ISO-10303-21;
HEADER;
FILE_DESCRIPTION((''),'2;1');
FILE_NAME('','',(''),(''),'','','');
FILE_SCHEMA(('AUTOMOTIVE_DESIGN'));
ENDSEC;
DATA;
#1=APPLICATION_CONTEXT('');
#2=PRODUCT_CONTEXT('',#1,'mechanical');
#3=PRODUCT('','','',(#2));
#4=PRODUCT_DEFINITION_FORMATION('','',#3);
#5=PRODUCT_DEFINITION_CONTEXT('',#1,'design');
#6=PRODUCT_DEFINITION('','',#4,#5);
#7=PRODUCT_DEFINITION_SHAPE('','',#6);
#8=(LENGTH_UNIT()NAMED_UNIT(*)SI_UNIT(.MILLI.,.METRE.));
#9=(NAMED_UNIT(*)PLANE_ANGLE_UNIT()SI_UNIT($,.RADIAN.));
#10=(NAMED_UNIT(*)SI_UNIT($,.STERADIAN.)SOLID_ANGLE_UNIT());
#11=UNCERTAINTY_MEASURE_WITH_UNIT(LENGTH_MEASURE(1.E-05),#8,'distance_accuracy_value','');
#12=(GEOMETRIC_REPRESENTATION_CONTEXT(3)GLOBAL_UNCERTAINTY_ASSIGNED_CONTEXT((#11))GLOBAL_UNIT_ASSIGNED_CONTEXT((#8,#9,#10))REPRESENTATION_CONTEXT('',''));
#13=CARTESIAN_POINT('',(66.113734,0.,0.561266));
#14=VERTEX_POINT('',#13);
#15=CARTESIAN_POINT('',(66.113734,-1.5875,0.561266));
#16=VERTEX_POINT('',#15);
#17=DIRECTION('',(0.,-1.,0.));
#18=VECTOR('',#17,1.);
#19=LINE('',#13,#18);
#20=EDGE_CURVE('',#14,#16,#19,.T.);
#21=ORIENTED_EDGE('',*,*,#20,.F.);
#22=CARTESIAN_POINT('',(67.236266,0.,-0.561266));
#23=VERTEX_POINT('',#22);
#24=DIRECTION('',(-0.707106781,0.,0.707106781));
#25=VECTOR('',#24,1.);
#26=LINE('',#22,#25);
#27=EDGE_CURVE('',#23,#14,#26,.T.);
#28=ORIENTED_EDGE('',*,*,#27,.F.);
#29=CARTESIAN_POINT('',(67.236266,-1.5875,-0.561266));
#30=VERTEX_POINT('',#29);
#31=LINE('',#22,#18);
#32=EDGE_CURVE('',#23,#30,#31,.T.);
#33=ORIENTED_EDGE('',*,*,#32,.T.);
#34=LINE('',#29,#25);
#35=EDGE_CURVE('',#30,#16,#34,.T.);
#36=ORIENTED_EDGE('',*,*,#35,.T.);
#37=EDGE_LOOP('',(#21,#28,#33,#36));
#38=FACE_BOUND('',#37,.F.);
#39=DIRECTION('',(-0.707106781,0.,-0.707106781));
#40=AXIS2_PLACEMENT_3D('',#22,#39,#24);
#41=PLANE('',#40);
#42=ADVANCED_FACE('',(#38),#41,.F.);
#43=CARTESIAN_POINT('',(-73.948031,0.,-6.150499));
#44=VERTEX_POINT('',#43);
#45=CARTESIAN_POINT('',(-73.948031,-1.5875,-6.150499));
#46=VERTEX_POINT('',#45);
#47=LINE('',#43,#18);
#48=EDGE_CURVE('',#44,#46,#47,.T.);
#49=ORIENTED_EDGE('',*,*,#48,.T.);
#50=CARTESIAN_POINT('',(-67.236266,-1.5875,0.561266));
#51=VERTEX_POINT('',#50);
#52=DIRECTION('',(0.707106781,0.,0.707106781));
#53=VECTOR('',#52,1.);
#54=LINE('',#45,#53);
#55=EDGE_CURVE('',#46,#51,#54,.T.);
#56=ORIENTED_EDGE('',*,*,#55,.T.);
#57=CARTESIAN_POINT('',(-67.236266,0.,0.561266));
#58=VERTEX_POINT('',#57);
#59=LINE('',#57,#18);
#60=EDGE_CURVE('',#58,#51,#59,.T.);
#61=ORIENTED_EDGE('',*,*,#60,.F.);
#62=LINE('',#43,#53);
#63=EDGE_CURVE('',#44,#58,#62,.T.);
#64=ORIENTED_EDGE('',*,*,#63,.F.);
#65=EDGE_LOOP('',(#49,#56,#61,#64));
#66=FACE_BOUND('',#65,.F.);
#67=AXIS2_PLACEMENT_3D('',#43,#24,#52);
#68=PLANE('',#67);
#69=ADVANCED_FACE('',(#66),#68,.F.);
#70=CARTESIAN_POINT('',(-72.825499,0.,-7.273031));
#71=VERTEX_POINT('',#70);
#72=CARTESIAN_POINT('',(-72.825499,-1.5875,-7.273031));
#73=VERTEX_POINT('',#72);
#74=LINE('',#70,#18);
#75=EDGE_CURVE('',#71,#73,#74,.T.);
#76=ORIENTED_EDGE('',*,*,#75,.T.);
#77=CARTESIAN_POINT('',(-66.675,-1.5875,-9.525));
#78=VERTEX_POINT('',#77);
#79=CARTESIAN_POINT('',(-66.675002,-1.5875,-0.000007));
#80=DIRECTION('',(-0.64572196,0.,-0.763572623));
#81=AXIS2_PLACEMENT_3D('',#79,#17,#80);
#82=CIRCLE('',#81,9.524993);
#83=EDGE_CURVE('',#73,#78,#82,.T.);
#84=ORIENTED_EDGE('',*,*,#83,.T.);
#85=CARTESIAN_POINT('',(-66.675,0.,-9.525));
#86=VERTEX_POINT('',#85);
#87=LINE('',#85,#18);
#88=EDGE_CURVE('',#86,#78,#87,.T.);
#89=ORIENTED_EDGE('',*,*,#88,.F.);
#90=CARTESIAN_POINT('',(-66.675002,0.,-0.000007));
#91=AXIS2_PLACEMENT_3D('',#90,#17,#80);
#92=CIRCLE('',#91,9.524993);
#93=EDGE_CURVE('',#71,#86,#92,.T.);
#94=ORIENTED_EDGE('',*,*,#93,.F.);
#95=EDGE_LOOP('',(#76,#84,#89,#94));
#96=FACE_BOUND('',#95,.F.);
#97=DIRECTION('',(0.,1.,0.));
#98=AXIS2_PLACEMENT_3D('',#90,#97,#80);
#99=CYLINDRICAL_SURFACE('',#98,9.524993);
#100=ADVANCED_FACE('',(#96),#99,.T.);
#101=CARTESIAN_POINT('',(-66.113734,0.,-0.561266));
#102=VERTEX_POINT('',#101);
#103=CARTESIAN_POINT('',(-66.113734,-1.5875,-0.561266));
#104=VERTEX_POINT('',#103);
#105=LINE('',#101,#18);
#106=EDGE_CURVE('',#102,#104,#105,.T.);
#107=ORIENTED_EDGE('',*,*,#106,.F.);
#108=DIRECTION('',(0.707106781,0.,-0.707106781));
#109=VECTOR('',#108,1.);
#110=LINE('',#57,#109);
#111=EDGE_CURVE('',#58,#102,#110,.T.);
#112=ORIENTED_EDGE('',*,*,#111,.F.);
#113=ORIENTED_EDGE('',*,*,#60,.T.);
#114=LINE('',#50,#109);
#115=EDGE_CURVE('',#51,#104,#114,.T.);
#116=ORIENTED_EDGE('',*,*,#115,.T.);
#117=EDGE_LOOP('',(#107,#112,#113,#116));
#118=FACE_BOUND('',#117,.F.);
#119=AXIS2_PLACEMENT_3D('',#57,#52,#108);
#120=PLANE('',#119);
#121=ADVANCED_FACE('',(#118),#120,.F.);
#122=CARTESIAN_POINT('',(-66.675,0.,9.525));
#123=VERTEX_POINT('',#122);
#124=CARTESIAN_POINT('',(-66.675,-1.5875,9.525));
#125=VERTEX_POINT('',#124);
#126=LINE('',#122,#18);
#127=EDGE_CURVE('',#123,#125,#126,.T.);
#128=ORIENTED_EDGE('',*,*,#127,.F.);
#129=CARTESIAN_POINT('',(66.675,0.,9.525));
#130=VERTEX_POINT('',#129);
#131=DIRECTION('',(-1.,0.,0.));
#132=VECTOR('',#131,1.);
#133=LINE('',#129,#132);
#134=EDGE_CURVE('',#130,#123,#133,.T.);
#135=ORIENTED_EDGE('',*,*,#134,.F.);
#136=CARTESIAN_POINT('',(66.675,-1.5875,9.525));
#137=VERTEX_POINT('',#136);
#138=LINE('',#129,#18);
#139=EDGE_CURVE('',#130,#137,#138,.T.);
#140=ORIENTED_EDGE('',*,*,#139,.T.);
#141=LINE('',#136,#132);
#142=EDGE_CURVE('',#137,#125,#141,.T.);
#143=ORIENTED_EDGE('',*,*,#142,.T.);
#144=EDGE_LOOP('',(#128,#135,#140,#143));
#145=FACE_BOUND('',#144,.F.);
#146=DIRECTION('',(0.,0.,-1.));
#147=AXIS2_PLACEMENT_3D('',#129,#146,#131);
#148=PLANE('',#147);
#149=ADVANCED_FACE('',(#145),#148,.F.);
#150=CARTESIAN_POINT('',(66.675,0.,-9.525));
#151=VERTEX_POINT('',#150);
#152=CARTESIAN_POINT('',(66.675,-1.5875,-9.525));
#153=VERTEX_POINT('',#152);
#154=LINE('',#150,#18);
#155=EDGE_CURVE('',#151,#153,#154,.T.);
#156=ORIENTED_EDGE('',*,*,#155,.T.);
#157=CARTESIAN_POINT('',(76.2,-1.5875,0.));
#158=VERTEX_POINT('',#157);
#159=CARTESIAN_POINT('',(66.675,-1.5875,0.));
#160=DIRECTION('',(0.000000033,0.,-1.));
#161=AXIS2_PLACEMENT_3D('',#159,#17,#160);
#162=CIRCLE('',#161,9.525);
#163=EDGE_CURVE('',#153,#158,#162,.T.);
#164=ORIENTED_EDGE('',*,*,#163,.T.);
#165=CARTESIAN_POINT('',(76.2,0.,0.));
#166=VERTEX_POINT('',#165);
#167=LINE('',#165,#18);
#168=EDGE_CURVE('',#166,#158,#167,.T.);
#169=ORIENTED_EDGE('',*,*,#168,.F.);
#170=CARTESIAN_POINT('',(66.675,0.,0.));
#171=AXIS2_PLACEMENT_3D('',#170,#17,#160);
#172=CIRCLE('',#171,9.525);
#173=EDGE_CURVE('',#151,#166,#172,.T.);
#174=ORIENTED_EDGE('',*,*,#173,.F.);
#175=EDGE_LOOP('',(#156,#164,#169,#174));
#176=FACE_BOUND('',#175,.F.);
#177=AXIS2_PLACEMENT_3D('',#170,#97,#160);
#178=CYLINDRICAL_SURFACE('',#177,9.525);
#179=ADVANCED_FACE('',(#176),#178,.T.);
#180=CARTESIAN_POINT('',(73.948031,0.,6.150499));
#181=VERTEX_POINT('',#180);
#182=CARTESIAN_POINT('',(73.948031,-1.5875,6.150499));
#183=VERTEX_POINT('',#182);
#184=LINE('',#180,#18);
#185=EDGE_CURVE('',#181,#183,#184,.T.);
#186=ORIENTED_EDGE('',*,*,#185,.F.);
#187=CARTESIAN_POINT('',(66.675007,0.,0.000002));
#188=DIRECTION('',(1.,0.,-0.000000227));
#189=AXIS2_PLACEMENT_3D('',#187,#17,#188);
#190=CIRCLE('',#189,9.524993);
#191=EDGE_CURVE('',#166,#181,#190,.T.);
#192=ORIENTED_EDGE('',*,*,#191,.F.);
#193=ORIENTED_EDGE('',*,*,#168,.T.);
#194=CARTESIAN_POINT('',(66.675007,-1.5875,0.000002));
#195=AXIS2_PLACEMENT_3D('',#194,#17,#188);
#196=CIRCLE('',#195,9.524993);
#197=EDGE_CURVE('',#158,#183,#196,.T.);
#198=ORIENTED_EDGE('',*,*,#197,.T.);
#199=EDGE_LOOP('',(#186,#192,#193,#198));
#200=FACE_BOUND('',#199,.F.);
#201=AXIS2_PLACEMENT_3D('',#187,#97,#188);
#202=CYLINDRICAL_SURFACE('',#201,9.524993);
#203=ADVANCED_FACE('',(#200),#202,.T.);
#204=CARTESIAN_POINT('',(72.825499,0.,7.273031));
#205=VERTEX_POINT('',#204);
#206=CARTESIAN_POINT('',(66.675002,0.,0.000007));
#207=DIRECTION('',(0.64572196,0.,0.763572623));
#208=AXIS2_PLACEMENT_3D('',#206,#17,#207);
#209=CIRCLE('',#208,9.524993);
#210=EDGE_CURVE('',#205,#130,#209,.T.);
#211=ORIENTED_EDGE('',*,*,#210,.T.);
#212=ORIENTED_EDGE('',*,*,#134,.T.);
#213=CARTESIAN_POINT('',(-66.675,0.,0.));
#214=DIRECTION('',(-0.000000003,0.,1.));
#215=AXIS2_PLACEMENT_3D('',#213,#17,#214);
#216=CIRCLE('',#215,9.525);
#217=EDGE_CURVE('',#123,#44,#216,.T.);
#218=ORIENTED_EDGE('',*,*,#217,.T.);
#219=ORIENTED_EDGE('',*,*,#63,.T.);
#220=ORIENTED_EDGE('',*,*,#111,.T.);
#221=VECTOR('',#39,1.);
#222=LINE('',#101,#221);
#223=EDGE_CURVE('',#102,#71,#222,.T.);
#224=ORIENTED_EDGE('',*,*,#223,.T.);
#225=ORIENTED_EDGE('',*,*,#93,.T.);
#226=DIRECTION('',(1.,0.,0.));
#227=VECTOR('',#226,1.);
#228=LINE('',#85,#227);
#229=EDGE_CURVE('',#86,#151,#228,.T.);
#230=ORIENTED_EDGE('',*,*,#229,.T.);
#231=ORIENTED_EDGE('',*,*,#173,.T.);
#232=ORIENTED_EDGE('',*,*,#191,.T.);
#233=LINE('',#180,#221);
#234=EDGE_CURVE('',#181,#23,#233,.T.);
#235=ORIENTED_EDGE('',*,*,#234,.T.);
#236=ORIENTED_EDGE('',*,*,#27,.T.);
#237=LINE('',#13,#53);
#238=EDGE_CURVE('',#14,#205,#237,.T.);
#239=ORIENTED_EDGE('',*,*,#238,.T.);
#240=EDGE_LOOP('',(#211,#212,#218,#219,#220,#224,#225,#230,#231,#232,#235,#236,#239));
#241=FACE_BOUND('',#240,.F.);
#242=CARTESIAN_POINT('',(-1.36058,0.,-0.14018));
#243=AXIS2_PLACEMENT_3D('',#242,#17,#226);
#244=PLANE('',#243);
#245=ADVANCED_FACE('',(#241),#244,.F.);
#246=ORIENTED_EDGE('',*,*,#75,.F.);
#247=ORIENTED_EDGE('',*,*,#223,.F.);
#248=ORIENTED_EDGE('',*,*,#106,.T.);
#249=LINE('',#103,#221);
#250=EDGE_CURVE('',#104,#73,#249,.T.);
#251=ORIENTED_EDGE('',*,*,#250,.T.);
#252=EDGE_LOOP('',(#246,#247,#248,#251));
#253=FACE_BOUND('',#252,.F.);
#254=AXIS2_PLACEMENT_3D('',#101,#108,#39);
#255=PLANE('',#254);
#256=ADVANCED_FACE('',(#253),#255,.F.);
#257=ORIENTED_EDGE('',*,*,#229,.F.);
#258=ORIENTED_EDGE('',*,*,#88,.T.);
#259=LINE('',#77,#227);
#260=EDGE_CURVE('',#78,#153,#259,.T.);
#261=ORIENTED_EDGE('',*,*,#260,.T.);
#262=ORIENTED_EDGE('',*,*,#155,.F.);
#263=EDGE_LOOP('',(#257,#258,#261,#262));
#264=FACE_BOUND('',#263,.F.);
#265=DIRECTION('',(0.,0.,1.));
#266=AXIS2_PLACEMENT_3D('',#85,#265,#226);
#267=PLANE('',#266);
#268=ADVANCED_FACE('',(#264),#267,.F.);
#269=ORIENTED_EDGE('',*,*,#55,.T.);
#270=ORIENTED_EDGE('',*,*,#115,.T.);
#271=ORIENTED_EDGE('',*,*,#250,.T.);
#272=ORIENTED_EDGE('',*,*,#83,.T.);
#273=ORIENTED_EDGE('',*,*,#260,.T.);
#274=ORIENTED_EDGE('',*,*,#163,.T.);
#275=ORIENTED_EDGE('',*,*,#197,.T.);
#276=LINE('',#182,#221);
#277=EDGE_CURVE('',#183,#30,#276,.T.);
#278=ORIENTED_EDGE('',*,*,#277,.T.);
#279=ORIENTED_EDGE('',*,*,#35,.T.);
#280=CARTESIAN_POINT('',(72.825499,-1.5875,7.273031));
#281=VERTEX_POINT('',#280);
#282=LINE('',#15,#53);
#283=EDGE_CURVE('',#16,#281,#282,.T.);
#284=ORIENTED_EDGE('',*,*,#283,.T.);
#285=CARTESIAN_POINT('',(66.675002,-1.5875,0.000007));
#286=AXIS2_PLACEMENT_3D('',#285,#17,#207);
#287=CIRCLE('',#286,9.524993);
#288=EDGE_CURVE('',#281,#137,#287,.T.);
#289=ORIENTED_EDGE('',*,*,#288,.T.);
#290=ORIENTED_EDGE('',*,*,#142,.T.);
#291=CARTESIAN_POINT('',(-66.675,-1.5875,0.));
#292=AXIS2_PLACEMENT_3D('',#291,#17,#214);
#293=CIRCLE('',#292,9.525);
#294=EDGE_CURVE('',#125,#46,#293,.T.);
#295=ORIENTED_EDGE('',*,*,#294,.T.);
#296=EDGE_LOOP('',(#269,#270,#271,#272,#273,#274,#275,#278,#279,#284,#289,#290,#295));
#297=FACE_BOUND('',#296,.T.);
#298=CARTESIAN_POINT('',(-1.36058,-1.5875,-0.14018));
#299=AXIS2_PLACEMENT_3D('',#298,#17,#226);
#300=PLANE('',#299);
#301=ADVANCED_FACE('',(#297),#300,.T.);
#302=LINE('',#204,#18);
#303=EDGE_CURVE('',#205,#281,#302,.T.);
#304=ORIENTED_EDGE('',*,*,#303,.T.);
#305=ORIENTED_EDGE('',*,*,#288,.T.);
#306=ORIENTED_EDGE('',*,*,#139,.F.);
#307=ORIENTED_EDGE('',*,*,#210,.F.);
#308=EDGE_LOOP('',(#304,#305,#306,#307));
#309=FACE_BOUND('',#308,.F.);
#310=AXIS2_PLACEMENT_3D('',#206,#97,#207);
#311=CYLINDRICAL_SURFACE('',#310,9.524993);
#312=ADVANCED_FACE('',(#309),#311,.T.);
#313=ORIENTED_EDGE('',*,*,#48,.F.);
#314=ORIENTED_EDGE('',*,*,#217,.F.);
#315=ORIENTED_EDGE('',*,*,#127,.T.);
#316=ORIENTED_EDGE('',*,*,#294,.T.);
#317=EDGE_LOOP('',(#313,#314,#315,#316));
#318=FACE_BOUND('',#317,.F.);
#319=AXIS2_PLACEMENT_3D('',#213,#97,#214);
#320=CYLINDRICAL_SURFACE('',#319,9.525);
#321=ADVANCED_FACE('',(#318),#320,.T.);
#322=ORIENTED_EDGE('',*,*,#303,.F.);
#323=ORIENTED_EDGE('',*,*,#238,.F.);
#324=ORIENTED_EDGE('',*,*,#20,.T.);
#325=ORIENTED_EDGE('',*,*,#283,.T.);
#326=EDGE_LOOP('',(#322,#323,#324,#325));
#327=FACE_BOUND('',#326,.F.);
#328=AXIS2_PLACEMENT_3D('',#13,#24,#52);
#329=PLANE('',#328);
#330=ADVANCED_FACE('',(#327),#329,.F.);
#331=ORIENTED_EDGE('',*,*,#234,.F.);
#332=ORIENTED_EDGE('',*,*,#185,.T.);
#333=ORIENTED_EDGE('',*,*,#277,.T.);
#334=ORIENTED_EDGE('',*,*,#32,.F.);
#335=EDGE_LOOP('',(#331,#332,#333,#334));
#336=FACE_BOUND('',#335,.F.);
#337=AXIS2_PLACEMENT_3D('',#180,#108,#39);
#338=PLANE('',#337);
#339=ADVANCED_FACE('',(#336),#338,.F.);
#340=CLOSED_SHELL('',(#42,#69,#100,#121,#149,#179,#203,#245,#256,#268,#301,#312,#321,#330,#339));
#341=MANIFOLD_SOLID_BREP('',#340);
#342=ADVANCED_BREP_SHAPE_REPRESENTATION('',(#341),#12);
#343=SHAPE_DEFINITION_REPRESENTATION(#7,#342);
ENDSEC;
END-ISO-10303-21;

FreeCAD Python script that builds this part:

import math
import FreeCAD as App
import Part
import Sketcher
Q = App.Units.Quantity

doc = App.newDocument("Part")
body = doc.addObject("PartDesign::Body", "Body")

# Sketch on XZ plane
sketch1 = body.newObject("Sketcher::SketchObject", "Sketch")
sketch1.AttachmentSupport = (doc.getObject("XZ_Plane"), [""])
sketch1.MapMode = "FlatFace"
sketch1.addGeometry(Part.ArcOfCircle(Part.Circle(App.Vector(66.7, 0, 0), App.Vector(0, 0, 1), 9.5), math.radians(50), math.radians(90)), False)
sketch1.addGeometry(Part.LineSegment(App.Vector(66.7, 9.5, 0), App.Vector(-66.7, 9.5, 0)), False)
sketch1.addGeometry(Part.ArcOfCircle(Part.Circle(App.Vector(-66.7, 0, 0), App.Vector(0, 0, 1), 9.5), math.radians(90), math.radians(220)), False)
sketch1.addGeometry(Part.LineSegment(App.Vector(-73.9, -6.2, 0), App.Vector(-67.2, 0.6, 0)), False)
sketch1.addGeometry(Part.LineSegment(App.Vector(-67.2, 0.6, 0), App.Vector(-66.1, -0.6, 0)), False)
sketch1.addGeometry(Part.LineSegment(App.Vector(-66.1, -0.6, 0), App.Vector(-72.8, -7.3, 0)), False)
sketch1.addGeometry(Part.ArcOfCircle(Part.Circle(App.Vector(-66.7, 0, 0), App.Vector(0, 0, 1), 9.5), math.radians(-130), math.radians(-90)), False)
sketch1.addGeometry(Part.LineSegment(App.Vector(-66.7, -9.5, 0), App.Vector(66.7, -9.5, 0)), False)
sketch1.addGeometry(Part.ArcOfCircle(Part.Circle(App.Vector(66.7, 0, 0), App.Vector(0, 0, 1), 9.5), math.radians(-90), math.radians(0)), False)
sketch1.addGeometry(Part.ArcOfCircle(Part.Circle(App.Vector(66.7, 0, 0), App.Vector(0, 0, 1), 9.5), math.radians(0), math.radians(40)), False)
sketch1.addGeometry(Part.LineSegment(App.Vector(73.9, 6.2, 0), App.Vector(67.2, -0.6, 0)), False)
sketch1.addGeometry(Part.LineSegment(App.Vector(67.2, -0.6, 0), App.Vector(66.1, 0.6, 0)), False)
sketch1.addGeometry(Part.LineSegment(App.Vector(66.1, 0.6, 0), App.Vector(72.8, 7.3, 0)), False)
sketch1.addConstraint(Sketcher.Constraint("Tangent", 0, 2, 1, 1))
sketch1.addConstraint(Sketcher.Constraint("Tangent", 1, 2, 2, 1))
sketch1.addConstraint(Sketcher.Constraint("Coincident", 2, 2, 3, 1))
sketch1.addConstraint(Sketcher.Constraint("Coincident", 3, 2, 4, 1))
sketch1.addConstraint(Sketcher.Constraint("Coincident", 4, 2, 5, 1))
sketch1.addConstraint(Sketcher.Constraint("Coincident", 5, 2, 6, 1))
sketch1.addConstraint(Sketcher.Constraint("Tangent", 6, 2, 7, 1))
sketch1.addConstraint(Sketcher.Constraint("Tangent", 7, 2, 8, 1))
sketch1.addConstraint(Sketcher.Constraint("Tangent", 8, 2, 9, 1))
sketch1.addConstraint(Sketcher.Constraint("Coincident", 9, 2, 10, 1))
sketch1.addConstraint(Sketcher.Constraint("Coincident", 10, 2, 11, 1))
sketch1.addConstraint(Sketcher.Constraint("Coincident", 11, 2, 12, 1))
sketch1.addConstraint(Sketcher.Constraint("Coincident", 12, 2, 0, 1))
sketch1.addConstraint(Sketcher.Constraint("Horizontal", 1))
sketch1.addConstraint(Sketcher.Constraint("Horizontal", 7))
sketch1.addConstraint(Sketcher.Constraint("Coincident", 6, 3, 2, 3))
sketch1.addConstraint(Sketcher.Constraint("Coincident", 8, 3, 0, 3))
sketch1.addConstraint(Sketcher.Constraint("Equal", 0, 6))
sketch1.addConstraint(Sketcher.Constraint("Equal", 6, 9))
sketch1.addConstraint(Sketcher.Constraint("Symmetric", 0, 3, 2, 3, -1, 1))
sketch1.addConstraint(Sketcher.Constraint("Symmetric", 2, 2, 9, 2, -1, 1))
sketch1.addConstraint(Sketcher.Constraint("Symmetric", 3, 2, 10, 2, -1, 1))
sketch1.addConstraint(Sketcher.Constraint("Symmetric", 4, 2, 11, 2, -1, 1))
sketch1.addConstraint(Sketcher.Constraint("PointOnObject", 8, 2, -1))
sketch1.addConstraint(Sketcher.Constraint("Perpendicular", 3, 4))
sketch1.addConstraint(Sketcher.Constraint("Perpendicular", 4, 5))
sketch1.addConstraint(Sketcher.Constraint("Perpendicular", 11, 12))
sketch1.addConstraint(Sketcher.Constraint("Horizontal", 4, 2, 10, 2))
sketch1.addConstraint(Sketcher.Constraint("Equal", 3, 5))
sketch1.addConstraint(Sketcher.Constraint("DistanceX", -1, 1, 8, 2, Q("3 in")))
sketch1.addConstraint(Sketcher.Constraint("Angle", 3, Q("45 deg")))
sketch1.addConstraint(Sketcher.Constraint("Radius", 2, Q("0.375 in")))
sketch1.addConstraint(Sketcher.Constraint("Distance", 4, Q("0.0625 in")))
pad1 = body.newObject("PartDesign::Pad", "Pad")
pad1.Profile = sketch1
pad1.Length = Q("0.0625 in")

doc.recompute()
